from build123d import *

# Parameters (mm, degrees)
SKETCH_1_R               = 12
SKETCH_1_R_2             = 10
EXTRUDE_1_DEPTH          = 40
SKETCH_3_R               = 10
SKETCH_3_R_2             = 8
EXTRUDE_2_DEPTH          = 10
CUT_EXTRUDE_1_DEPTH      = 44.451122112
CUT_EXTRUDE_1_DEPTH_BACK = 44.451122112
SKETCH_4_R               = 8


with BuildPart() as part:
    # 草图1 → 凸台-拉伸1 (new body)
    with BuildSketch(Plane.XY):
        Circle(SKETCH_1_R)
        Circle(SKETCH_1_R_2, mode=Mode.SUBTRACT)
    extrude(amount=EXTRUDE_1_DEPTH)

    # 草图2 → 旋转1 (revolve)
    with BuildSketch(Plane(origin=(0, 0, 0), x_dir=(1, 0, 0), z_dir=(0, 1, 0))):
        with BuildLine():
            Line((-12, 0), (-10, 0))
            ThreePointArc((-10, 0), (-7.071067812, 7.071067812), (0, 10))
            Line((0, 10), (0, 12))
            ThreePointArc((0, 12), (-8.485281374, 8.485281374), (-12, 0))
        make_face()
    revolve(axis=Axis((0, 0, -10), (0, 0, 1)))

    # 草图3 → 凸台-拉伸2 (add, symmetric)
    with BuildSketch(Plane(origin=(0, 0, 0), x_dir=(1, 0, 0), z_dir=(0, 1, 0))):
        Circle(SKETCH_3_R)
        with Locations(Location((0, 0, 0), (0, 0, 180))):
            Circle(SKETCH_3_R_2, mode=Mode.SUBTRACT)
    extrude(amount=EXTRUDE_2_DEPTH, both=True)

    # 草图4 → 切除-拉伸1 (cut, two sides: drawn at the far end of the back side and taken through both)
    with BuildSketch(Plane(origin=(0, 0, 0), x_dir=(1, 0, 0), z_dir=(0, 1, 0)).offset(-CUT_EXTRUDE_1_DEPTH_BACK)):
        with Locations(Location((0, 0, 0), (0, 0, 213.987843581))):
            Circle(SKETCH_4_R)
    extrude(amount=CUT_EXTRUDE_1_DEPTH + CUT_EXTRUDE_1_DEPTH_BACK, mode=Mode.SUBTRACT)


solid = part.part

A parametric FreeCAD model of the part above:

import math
import FreeCAD as App
import Part
import Sketcher

V = App.Vector
Q = App.Units.Quantity

doc = App.newDocument("Part")
body = doc.addObject("PartDesign::Body", "Body")

sketch1 = doc.addObject("Sketcher::SketchObject", "Sketch")
body.addObject(sketch1)
sketch1.AttachmentSupport = (doc.XY_Plane, [""])
sketch1.MapMode = "FlatFace"
sketch1.addGeometry([
    Part.Circle(V(0, 0, 0), V(0, 0, 1), 12),
    Part.Circle(V(0, 0, 0), V(0, 0, 1), 10),
], False)
sketch1.addConstraint([
    Sketcher.Constraint("Coincident", 0, 3, -1, 1),
    Sketcher.Constraint("Coincident", 1, 3, -1, 1),
    Sketcher.Constraint("Diameter", 0, Q("24 mm")),
    Sketcher.Constraint("Diameter", 1, Q("20 mm")),
])
pad1 = doc.addObject("PartDesign::Pad", "Pad")
body.addObject(pad1)
pad1.Profile = sketch1
pad1.Length = 40

sketch2 = doc.addObject("Sketcher::SketchObject", "Sketch001")
body.addObject(sketch2)
sketch2.AttachmentSupport = (doc.XZ_Plane, [""])
sketch2.MapMode = "FlatFace"
sketch2.addGeometry([
    Part.LineSegment(V(-12, 0, 0), V(-10, 0, 0)),
    Part.ArcOfCircle(Part.Circle(V(0, 0, 0), V(0, 0, 1), 10), math.radians(180), math.radians(270)),
    Part.LineSegment(V(0, -10, 0), V(0, -12, 0)),
    Part.ArcOfCircle(Part.Circle(V(0, 0, 0), V(0, 0, 1), 12), math.radians(-180), math.radians(-90)),
], False)
sketch2.addConstraint([
    Sketcher.Constraint("Coincident", 0, 2, 1, 1),
    Sketcher.Constraint("Coincident", 1, 2, 2, 1),
    Sketcher.Constraint("Coincident", 2, 2, 3, 2),
    Sketcher.Constraint("Coincident", 3, 1, 0, 1),
    Sketcher.Constraint("Horizontal", 0),
    Sketcher.Constraint("Vertical", 2),
    Sketcher.Constraint("Coincident", 1, 3, -1, 1),
    Sketcher.Constraint("Coincident", 3, 3, -1, 1),
    Sketcher.Constraint("PointOnObject", 0, 2, -1),
    Sketcher.Constraint("PointOnObject", 1, 2, -2),
    Sketcher.Constraint("Radius", 1, Q("10 mm")),
    Sketcher.Constraint("Radius", 3, Q("12 mm")),
])
revolution = doc.addObject("PartDesign::Revolution", "Revolution")
body.addObject(revolution)
revolution.Profile = sketch2
revolution.ReferenceAxis = (sketch2, ["V_Axis"])
revolution.Angle = 360

sketch3 = doc.addObject("Sketcher::SketchObject", "Sketch002")
body.addObject(sketch3)
sketch3.AttachmentSupport = (doc.XZ_Plane, [""])
sketch3.MapMode = "FlatFace"
sketch3.addGeometry([
    Part.Circle(V(0, 0, 0), V(0, 0, 1), 10),
    Part.Circle(V(0, 0, 0), V(0, 0, 1), 8),
], False)
sketch3.addConstraint([
    Sketcher.Constraint("Coincident", 0, 3, -1, 1),
    Sketcher.Constraint("Coincident", 1, 3, -1, 1),
    Sketcher.Constraint("Diameter", 0, Q("20 mm")),
    Sketcher.Constraint("Diameter", 1, Q("16 mm")),
])
pad2 = doc.addObject("PartDesign::Pad", "Pad001")
body.addObject(pad2)
pad2.Profile = sketch3
pad2.Length = 20
pad2.Midplane = True

sketch4 = doc.addObject("Sketcher::SketchObject", "Sketch003")
body.addObject(sketch4)
sketch4.AttachmentSupport = (doc.XZ_Plane, [""])
sketch4.MapMode = "FlatFace"
sketch4.addGeometry(Part.Circle(V(0, 0, 0), V(0, 0, 1), 8), False)
sketch4.addConstraint([
    Sketcher.Constraint("Coincident", 0, 3, -1, 1),
    Sketcher.Constraint("Diameter", 0, Q("16 mm")),
])
pocket1 = doc.addObject("PartDesign::Pocket", "Pocket")
body.addObject(pocket1)
pocket1.Profile = sketch4
pocket1.Type = "ThroughAll"
pocket1.Midplane = True

doc.recompute()
